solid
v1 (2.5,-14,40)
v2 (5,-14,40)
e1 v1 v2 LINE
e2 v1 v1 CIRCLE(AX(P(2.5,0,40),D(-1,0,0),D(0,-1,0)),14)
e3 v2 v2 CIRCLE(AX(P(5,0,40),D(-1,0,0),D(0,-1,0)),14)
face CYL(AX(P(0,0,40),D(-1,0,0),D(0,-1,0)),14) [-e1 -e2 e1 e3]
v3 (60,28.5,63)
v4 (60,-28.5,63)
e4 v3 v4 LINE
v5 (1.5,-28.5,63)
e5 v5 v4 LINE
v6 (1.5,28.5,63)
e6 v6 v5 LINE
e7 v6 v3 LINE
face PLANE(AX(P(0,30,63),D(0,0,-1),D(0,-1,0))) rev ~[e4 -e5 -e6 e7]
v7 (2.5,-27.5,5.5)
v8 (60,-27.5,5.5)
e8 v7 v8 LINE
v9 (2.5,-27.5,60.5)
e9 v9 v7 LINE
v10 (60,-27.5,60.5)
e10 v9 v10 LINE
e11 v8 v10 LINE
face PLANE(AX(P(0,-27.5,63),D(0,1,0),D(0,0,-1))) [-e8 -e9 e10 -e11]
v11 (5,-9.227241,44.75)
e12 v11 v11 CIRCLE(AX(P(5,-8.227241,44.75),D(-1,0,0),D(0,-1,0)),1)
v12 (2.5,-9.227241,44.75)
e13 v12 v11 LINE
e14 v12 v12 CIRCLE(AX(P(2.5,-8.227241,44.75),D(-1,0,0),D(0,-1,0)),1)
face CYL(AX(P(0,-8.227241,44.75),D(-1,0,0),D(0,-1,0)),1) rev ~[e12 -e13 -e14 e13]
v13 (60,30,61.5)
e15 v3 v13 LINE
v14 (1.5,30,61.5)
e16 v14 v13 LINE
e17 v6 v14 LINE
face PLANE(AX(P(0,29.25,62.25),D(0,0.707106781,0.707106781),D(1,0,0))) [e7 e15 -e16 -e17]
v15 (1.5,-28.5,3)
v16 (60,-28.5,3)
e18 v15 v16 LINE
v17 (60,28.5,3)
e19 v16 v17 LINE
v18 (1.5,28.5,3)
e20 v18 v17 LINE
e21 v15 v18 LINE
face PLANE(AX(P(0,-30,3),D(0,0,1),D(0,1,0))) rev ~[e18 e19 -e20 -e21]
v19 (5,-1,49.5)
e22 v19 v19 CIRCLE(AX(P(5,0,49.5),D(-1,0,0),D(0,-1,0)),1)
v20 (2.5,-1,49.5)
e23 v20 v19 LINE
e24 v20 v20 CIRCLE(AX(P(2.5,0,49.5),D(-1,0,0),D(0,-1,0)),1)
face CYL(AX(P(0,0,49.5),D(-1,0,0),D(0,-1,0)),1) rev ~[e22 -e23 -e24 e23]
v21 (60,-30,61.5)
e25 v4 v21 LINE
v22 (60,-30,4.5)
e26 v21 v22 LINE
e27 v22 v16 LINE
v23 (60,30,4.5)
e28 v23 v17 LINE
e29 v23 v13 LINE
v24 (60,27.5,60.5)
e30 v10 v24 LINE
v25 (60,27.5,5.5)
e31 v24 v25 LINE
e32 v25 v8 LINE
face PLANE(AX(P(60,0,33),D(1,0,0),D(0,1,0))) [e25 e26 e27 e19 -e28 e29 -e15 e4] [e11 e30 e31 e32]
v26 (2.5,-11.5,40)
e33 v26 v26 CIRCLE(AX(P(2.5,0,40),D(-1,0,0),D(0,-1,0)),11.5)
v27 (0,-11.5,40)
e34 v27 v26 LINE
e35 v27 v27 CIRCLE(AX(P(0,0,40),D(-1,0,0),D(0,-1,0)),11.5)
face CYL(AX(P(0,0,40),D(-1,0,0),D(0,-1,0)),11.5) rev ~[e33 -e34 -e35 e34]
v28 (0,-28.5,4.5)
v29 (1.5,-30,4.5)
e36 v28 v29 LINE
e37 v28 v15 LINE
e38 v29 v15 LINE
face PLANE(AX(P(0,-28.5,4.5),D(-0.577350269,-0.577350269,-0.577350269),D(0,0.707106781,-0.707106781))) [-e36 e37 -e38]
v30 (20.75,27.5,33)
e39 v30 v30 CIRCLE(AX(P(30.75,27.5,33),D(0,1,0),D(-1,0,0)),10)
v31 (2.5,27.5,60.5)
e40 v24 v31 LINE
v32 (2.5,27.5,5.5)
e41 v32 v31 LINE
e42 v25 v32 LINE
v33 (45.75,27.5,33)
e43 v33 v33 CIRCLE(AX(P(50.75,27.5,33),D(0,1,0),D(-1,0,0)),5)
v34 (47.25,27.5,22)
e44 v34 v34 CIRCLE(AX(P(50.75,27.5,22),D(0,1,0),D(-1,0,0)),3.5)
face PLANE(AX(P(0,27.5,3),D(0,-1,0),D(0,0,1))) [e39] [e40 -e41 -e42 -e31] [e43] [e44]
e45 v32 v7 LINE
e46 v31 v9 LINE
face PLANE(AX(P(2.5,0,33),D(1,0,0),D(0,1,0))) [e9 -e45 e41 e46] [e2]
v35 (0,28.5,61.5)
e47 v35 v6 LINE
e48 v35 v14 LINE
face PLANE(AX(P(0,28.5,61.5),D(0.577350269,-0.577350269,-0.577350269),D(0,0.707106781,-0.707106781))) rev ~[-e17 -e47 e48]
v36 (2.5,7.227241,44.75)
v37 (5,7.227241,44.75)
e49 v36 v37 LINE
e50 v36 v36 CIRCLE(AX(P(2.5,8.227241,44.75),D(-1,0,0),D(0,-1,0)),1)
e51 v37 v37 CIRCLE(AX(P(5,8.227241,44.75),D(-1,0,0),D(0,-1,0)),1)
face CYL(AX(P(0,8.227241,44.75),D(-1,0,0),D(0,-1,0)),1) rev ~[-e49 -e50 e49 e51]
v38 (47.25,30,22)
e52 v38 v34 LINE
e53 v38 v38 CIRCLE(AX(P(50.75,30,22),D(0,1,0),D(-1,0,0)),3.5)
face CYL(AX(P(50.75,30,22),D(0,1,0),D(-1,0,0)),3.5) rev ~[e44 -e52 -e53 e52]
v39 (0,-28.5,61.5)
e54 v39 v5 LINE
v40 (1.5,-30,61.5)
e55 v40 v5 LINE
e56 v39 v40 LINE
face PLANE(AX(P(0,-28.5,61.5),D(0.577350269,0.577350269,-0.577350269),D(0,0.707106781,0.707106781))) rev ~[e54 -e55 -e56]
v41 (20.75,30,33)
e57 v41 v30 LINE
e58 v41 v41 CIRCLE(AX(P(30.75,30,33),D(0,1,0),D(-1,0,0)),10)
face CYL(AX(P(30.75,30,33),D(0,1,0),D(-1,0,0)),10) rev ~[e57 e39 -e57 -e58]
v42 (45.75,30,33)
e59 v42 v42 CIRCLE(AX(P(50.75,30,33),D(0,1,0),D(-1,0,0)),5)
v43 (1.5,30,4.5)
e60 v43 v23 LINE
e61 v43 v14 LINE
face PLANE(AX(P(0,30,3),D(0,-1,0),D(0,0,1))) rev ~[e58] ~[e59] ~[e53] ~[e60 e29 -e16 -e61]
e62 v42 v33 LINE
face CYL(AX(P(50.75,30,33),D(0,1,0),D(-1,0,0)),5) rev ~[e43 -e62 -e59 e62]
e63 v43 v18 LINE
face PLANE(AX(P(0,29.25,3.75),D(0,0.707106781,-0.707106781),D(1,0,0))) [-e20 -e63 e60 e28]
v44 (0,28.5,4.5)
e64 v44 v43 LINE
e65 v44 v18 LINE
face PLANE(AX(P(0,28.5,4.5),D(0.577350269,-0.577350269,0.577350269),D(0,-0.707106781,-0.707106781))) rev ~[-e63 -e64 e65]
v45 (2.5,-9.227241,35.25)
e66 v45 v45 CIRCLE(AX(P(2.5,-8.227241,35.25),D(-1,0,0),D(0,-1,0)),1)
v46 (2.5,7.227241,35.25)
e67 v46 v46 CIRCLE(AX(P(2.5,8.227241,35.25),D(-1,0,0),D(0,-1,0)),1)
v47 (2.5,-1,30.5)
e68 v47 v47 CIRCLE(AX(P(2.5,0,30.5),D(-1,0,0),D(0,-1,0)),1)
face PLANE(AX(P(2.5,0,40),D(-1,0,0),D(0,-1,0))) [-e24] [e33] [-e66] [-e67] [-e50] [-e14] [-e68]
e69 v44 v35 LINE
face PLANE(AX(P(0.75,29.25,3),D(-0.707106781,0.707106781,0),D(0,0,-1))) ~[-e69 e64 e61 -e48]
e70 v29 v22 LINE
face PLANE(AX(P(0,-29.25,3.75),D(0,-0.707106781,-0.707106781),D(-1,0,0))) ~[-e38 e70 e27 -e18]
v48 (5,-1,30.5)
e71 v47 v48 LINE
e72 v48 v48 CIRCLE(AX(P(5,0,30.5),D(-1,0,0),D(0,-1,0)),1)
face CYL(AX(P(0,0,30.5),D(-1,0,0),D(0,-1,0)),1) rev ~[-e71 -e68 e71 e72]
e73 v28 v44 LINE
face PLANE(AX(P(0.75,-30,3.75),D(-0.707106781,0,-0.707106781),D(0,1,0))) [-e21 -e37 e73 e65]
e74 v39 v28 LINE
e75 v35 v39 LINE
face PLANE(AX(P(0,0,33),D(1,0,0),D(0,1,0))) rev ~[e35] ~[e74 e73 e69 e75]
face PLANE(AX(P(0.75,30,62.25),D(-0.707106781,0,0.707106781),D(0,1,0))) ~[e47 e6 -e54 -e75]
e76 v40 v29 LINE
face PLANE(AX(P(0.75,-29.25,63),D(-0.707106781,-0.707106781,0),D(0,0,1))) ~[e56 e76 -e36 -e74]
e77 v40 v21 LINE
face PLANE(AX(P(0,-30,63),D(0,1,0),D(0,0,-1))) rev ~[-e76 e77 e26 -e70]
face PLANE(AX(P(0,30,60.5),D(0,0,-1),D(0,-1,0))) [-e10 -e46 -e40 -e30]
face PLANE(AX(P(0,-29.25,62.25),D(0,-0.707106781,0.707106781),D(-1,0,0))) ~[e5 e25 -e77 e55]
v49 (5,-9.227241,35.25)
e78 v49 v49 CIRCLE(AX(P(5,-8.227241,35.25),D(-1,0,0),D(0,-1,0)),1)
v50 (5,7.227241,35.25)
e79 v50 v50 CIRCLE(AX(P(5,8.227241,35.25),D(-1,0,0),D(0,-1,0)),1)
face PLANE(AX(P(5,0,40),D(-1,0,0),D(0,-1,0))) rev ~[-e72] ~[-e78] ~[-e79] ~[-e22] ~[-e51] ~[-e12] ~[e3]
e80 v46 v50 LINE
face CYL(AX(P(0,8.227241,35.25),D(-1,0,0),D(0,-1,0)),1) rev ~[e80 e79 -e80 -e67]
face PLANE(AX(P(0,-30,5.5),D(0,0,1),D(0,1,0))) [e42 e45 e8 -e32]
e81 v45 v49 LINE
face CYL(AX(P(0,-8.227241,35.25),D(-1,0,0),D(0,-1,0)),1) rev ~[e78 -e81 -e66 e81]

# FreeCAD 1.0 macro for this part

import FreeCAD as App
import Part
import Sketcher


def edges_at(feature, points):
    """Names of the edges that pass closest to the given points."""
    edges = feature.Shape.Edges
    near = lambda p: min(range(len(edges)), key=lambda i: edges[i].distToShape(Part.Vertex(*p))[0])
    return sorted({f"Edge{near(p) + 1}" for p in points})


def faces_at(feature, points):
    """Names of the faces that lie closest to the given points."""
    faces = feature.Shape.Faces
    near = lambda p: min(range(len(faces)), key=lambda i: faces[i].distToShape(Part.Vertex(*p))[0])
    return sorted({f"Face{near(p) + 1}" for p in points})


def add_polygon(sketch, points):
    """Adds a closed chain of lines whose ends are joined by coincident constraints."""
    first, n = sketch.GeometryCount, len(points)
    for a, b in zip(points, points[1:] + points[:1]):
        sketch.addGeometry(Part.LineSegment(App.Vector(*a, 0), App.Vector(*b, 0)), False)
    for i in range(n):
        sketch.addConstraint(Sketcher.Constraint("Coincident", first + i, 2, first + (i + 1) % n, 1))

doc = App.newDocument("Part")
body = doc.addObject("PartDesign::Body", "Body")

# Sketch on YZ plane
sketch1 = doc.addObject("Sketcher::SketchObject", "Sketch")
body.addObject(sketch1)
sketch1.AttachmentSupport = (doc.YZ_Plane, [""])
sketch1.MapMode = "FlatFace"
add_polygon(sketch1, [(30, 63), (-30, 63), (-30, 3), (30, 3)])  # lines 0-3
sketch1.addConstraint([
    Sketcher.Constraint("Horizontal", 0),
    Sketcher.Constraint("Vertical", 1),
    Sketcher.Constraint("Horizontal", 2),
    Sketcher.Constraint("Vertical", 3),
    Sketcher.Constraint("Equal", 2, 1),
    Sketcher.Constraint("DistanceX", 0, 2, 0, 1, 60.0),
    Sketcher.Constraint("DistanceX", 0, 2, -1, 1, 30.0),
    Sketcher.Constraint("DistanceY", -1, 1, 0, 2, 63.0),
])
pad1 = doc.addObject("PartDesign::Pad", "Pad")
body.addObject(pad1)
pad1.Profile = sketch1
pad1.Length = 60

# Sketch on YZ plane
sketch2 = doc.addObject("Sketcher::SketchObject", "Sketch001")
body.addObject(sketch2)
sketch2.AttachmentSupport = (doc.YZ_Plane, [""])
sketch2.MapMode = "FlatFace"
sketch2.addGeometry(Part.Circle(App.Vector(0, 40, 0), App.Vector(0, 0, 1), 12), False)
sketch2.addConstraint([
    Sketcher.Constraint("PointOnObject", 0, 3, -2),
    Sketcher.Constraint("Diameter", 0, 23.0),
    Sketcher.Constraint("DistanceY", -1, 1, 0, 3, 40.0),
])
pocket1 = doc.addObject("PartDesign::Pocket", "Pocket")
body.addObject(pocket1)
pocket1.Profile = sketch2
pocket1.Length = 2.5
pocket1.Reversed = True
doc.recompute()

thickness = doc.addObject("PartDesign::Thickness", "Thickness")
body.addObject(thickness)
thickness.Base = (pocket1, faces_at(pocket1, [(60, 0, 33)]))
thickness.Value = 2.5
thickness.Reversed = True
thickness.Join = "Intersection"

# Sketch on YZ plane
sketch3 = doc.addObject("Sketcher::SketchObject", "Sketch002")
body.addObject(sketch3)
sketch3.AttachmentSupport = (doc.YZ_Plane, [""])
sketch3.MapMode = "FlatFace"
sketch3.addGeometry([
    Part.Circle(App.Vector(0, 49.5, 0), App.Vector(0, 0, 1), 1),  # 0
    Part.Circle(App.Vector(8.2, 44.8, 0), App.Vector(0, 0, 1), 1),  # 1
    Part.Circle(App.Vector(8.2, 35.2, 0), App.Vector(0, 0, 1), 1),  # 2
    Part.Circle(App.Vector(0, 30.5, 0), App.Vector(0, 0, 1), 1),  # 3
    Part.Circle(App.Vector(-8.2, 35.2, 0), App.Vector(0, 0, 1), 1),  # 4
    Part.Circle(App.Vector(-8.2, 44.8, 0), App.Vector(0, 0, 1), 1),  # 5
], False)
sketch3.addConstraint([
    Sketcher.Constraint("Equal", 0, 1),
    Sketcher.Constraint("Equal", 1, 2),
    Sketcher.Constraint("Equal", 2, 3),
    Sketcher.Constraint("Equal", 3, 4),
    Sketcher.Constraint("Equal", 4, 5),
    Sketcher.Constraint("Symmetric", 2, 3, 4, 3, -2),
    Sketcher.Constraint("Symmetric", 1, 3, 5, 3, -2),
    Sketcher.Constraint("PointOnObject", 0, 3, -2),
    Sketcher.Constraint("PointOnObject", 3, 3, -2),
    Sketcher.Constraint("Vertical", 1, 3, 2, 3),
    Sketcher.Constraint("Diameter", 0, 2.0),
    Sketcher.Constraint("DistanceY", 3, 3, 0, 3, 19.0),
    Sketcher.Constraint("DistanceY", -1, 1, 0, 3, 49.5),
    Sketcher.Constraint("DistanceY", 2, 3, 1, 3, 9.5),
    Sketcher.Constraint("DistanceY", -1, 1, 1, 3, 44.75),
    Sketcher.Constraint("DistanceX", -1, 1, 1, 3, 8.227241),
])
pocket2 = doc.addObject("PartDesign::Pocket", "Pocket001")
body.addObject(pocket2)
pocket2.Profile = sketch3
pocket2.Length = 25
pocket2.Reversed = True
doc.recompute()

chamfer = doc.addObject("PartDesign::Chamfer", "Chamfer")
body.addObject(chamfer)
chamfer.Base = (pocket2, edges_at(pocket2, [
    (30, -30, 63),
    (30, 30, 63),
    (30, 30, 3),
    (30, -30, 3),
    (0, -30, 33),
    (0, 0, 63),
    (0, 30, 33),
    (0, 0, 3),
]))
chamfer.Size = 1.5

# Sketch on XZ plane
sketch4 = doc.addObject("Sketcher::SketchObject", "Sketch003")
body.addObject(sketch4)
sketch4.AttachmentSupport = (doc.XZ_Plane, [""])
sketch4.MapMode = "FlatFace"
sketch4.AttachmentOffset = App.Placement(App.Vector(0, 0, -30), App.Rotation())
sketch4.addGeometry([
    Part.Circle(App.Vector(50.8, 22, 0), App.Vector(0, 0, 1), 3.5),
    Part.Circle(App.Vector(50.8, 33, 0), App.Vector(0, 0, 1), 5),
    Part.Circle(App.Vector(30.8, 33, 0), App.Vector(0, 0, 1), 10),
], False)
sketch4.addConstraint([
    Sketcher.Constraint("Horizontal", 1, 3, 2, 3),
    Sketcher.Constraint("Vertical", 0, 3, 1, 3),
    Sketcher.Constraint("Diameter", 0, 7.0),
    Sketcher.Constraint("Diameter", 1, 10.0),
    Sketcher.Constraint("Diameter", 2, 20.0),
    Sketcher.Constraint("DistanceY", -1, 1, 0, 3, 22.0),
    Sketcher.Constraint("DistanceY", -1, 1, 1, 3, 33.0),
    Sketcher.Constraint("DistanceX", 2, 3, 1, 3, 20.0),
    Sketcher.Constraint("DistanceX", -1, 1, 0, 3, 50.75),
])
pocket3 = doc.addObject("PartDesign::Pocket", "Pocket002")
body.addObject(pocket3)
pocket3.Profile = sketch4
pocket3.Length = 3
pocket3.Reversed = True

doc.recompute()
